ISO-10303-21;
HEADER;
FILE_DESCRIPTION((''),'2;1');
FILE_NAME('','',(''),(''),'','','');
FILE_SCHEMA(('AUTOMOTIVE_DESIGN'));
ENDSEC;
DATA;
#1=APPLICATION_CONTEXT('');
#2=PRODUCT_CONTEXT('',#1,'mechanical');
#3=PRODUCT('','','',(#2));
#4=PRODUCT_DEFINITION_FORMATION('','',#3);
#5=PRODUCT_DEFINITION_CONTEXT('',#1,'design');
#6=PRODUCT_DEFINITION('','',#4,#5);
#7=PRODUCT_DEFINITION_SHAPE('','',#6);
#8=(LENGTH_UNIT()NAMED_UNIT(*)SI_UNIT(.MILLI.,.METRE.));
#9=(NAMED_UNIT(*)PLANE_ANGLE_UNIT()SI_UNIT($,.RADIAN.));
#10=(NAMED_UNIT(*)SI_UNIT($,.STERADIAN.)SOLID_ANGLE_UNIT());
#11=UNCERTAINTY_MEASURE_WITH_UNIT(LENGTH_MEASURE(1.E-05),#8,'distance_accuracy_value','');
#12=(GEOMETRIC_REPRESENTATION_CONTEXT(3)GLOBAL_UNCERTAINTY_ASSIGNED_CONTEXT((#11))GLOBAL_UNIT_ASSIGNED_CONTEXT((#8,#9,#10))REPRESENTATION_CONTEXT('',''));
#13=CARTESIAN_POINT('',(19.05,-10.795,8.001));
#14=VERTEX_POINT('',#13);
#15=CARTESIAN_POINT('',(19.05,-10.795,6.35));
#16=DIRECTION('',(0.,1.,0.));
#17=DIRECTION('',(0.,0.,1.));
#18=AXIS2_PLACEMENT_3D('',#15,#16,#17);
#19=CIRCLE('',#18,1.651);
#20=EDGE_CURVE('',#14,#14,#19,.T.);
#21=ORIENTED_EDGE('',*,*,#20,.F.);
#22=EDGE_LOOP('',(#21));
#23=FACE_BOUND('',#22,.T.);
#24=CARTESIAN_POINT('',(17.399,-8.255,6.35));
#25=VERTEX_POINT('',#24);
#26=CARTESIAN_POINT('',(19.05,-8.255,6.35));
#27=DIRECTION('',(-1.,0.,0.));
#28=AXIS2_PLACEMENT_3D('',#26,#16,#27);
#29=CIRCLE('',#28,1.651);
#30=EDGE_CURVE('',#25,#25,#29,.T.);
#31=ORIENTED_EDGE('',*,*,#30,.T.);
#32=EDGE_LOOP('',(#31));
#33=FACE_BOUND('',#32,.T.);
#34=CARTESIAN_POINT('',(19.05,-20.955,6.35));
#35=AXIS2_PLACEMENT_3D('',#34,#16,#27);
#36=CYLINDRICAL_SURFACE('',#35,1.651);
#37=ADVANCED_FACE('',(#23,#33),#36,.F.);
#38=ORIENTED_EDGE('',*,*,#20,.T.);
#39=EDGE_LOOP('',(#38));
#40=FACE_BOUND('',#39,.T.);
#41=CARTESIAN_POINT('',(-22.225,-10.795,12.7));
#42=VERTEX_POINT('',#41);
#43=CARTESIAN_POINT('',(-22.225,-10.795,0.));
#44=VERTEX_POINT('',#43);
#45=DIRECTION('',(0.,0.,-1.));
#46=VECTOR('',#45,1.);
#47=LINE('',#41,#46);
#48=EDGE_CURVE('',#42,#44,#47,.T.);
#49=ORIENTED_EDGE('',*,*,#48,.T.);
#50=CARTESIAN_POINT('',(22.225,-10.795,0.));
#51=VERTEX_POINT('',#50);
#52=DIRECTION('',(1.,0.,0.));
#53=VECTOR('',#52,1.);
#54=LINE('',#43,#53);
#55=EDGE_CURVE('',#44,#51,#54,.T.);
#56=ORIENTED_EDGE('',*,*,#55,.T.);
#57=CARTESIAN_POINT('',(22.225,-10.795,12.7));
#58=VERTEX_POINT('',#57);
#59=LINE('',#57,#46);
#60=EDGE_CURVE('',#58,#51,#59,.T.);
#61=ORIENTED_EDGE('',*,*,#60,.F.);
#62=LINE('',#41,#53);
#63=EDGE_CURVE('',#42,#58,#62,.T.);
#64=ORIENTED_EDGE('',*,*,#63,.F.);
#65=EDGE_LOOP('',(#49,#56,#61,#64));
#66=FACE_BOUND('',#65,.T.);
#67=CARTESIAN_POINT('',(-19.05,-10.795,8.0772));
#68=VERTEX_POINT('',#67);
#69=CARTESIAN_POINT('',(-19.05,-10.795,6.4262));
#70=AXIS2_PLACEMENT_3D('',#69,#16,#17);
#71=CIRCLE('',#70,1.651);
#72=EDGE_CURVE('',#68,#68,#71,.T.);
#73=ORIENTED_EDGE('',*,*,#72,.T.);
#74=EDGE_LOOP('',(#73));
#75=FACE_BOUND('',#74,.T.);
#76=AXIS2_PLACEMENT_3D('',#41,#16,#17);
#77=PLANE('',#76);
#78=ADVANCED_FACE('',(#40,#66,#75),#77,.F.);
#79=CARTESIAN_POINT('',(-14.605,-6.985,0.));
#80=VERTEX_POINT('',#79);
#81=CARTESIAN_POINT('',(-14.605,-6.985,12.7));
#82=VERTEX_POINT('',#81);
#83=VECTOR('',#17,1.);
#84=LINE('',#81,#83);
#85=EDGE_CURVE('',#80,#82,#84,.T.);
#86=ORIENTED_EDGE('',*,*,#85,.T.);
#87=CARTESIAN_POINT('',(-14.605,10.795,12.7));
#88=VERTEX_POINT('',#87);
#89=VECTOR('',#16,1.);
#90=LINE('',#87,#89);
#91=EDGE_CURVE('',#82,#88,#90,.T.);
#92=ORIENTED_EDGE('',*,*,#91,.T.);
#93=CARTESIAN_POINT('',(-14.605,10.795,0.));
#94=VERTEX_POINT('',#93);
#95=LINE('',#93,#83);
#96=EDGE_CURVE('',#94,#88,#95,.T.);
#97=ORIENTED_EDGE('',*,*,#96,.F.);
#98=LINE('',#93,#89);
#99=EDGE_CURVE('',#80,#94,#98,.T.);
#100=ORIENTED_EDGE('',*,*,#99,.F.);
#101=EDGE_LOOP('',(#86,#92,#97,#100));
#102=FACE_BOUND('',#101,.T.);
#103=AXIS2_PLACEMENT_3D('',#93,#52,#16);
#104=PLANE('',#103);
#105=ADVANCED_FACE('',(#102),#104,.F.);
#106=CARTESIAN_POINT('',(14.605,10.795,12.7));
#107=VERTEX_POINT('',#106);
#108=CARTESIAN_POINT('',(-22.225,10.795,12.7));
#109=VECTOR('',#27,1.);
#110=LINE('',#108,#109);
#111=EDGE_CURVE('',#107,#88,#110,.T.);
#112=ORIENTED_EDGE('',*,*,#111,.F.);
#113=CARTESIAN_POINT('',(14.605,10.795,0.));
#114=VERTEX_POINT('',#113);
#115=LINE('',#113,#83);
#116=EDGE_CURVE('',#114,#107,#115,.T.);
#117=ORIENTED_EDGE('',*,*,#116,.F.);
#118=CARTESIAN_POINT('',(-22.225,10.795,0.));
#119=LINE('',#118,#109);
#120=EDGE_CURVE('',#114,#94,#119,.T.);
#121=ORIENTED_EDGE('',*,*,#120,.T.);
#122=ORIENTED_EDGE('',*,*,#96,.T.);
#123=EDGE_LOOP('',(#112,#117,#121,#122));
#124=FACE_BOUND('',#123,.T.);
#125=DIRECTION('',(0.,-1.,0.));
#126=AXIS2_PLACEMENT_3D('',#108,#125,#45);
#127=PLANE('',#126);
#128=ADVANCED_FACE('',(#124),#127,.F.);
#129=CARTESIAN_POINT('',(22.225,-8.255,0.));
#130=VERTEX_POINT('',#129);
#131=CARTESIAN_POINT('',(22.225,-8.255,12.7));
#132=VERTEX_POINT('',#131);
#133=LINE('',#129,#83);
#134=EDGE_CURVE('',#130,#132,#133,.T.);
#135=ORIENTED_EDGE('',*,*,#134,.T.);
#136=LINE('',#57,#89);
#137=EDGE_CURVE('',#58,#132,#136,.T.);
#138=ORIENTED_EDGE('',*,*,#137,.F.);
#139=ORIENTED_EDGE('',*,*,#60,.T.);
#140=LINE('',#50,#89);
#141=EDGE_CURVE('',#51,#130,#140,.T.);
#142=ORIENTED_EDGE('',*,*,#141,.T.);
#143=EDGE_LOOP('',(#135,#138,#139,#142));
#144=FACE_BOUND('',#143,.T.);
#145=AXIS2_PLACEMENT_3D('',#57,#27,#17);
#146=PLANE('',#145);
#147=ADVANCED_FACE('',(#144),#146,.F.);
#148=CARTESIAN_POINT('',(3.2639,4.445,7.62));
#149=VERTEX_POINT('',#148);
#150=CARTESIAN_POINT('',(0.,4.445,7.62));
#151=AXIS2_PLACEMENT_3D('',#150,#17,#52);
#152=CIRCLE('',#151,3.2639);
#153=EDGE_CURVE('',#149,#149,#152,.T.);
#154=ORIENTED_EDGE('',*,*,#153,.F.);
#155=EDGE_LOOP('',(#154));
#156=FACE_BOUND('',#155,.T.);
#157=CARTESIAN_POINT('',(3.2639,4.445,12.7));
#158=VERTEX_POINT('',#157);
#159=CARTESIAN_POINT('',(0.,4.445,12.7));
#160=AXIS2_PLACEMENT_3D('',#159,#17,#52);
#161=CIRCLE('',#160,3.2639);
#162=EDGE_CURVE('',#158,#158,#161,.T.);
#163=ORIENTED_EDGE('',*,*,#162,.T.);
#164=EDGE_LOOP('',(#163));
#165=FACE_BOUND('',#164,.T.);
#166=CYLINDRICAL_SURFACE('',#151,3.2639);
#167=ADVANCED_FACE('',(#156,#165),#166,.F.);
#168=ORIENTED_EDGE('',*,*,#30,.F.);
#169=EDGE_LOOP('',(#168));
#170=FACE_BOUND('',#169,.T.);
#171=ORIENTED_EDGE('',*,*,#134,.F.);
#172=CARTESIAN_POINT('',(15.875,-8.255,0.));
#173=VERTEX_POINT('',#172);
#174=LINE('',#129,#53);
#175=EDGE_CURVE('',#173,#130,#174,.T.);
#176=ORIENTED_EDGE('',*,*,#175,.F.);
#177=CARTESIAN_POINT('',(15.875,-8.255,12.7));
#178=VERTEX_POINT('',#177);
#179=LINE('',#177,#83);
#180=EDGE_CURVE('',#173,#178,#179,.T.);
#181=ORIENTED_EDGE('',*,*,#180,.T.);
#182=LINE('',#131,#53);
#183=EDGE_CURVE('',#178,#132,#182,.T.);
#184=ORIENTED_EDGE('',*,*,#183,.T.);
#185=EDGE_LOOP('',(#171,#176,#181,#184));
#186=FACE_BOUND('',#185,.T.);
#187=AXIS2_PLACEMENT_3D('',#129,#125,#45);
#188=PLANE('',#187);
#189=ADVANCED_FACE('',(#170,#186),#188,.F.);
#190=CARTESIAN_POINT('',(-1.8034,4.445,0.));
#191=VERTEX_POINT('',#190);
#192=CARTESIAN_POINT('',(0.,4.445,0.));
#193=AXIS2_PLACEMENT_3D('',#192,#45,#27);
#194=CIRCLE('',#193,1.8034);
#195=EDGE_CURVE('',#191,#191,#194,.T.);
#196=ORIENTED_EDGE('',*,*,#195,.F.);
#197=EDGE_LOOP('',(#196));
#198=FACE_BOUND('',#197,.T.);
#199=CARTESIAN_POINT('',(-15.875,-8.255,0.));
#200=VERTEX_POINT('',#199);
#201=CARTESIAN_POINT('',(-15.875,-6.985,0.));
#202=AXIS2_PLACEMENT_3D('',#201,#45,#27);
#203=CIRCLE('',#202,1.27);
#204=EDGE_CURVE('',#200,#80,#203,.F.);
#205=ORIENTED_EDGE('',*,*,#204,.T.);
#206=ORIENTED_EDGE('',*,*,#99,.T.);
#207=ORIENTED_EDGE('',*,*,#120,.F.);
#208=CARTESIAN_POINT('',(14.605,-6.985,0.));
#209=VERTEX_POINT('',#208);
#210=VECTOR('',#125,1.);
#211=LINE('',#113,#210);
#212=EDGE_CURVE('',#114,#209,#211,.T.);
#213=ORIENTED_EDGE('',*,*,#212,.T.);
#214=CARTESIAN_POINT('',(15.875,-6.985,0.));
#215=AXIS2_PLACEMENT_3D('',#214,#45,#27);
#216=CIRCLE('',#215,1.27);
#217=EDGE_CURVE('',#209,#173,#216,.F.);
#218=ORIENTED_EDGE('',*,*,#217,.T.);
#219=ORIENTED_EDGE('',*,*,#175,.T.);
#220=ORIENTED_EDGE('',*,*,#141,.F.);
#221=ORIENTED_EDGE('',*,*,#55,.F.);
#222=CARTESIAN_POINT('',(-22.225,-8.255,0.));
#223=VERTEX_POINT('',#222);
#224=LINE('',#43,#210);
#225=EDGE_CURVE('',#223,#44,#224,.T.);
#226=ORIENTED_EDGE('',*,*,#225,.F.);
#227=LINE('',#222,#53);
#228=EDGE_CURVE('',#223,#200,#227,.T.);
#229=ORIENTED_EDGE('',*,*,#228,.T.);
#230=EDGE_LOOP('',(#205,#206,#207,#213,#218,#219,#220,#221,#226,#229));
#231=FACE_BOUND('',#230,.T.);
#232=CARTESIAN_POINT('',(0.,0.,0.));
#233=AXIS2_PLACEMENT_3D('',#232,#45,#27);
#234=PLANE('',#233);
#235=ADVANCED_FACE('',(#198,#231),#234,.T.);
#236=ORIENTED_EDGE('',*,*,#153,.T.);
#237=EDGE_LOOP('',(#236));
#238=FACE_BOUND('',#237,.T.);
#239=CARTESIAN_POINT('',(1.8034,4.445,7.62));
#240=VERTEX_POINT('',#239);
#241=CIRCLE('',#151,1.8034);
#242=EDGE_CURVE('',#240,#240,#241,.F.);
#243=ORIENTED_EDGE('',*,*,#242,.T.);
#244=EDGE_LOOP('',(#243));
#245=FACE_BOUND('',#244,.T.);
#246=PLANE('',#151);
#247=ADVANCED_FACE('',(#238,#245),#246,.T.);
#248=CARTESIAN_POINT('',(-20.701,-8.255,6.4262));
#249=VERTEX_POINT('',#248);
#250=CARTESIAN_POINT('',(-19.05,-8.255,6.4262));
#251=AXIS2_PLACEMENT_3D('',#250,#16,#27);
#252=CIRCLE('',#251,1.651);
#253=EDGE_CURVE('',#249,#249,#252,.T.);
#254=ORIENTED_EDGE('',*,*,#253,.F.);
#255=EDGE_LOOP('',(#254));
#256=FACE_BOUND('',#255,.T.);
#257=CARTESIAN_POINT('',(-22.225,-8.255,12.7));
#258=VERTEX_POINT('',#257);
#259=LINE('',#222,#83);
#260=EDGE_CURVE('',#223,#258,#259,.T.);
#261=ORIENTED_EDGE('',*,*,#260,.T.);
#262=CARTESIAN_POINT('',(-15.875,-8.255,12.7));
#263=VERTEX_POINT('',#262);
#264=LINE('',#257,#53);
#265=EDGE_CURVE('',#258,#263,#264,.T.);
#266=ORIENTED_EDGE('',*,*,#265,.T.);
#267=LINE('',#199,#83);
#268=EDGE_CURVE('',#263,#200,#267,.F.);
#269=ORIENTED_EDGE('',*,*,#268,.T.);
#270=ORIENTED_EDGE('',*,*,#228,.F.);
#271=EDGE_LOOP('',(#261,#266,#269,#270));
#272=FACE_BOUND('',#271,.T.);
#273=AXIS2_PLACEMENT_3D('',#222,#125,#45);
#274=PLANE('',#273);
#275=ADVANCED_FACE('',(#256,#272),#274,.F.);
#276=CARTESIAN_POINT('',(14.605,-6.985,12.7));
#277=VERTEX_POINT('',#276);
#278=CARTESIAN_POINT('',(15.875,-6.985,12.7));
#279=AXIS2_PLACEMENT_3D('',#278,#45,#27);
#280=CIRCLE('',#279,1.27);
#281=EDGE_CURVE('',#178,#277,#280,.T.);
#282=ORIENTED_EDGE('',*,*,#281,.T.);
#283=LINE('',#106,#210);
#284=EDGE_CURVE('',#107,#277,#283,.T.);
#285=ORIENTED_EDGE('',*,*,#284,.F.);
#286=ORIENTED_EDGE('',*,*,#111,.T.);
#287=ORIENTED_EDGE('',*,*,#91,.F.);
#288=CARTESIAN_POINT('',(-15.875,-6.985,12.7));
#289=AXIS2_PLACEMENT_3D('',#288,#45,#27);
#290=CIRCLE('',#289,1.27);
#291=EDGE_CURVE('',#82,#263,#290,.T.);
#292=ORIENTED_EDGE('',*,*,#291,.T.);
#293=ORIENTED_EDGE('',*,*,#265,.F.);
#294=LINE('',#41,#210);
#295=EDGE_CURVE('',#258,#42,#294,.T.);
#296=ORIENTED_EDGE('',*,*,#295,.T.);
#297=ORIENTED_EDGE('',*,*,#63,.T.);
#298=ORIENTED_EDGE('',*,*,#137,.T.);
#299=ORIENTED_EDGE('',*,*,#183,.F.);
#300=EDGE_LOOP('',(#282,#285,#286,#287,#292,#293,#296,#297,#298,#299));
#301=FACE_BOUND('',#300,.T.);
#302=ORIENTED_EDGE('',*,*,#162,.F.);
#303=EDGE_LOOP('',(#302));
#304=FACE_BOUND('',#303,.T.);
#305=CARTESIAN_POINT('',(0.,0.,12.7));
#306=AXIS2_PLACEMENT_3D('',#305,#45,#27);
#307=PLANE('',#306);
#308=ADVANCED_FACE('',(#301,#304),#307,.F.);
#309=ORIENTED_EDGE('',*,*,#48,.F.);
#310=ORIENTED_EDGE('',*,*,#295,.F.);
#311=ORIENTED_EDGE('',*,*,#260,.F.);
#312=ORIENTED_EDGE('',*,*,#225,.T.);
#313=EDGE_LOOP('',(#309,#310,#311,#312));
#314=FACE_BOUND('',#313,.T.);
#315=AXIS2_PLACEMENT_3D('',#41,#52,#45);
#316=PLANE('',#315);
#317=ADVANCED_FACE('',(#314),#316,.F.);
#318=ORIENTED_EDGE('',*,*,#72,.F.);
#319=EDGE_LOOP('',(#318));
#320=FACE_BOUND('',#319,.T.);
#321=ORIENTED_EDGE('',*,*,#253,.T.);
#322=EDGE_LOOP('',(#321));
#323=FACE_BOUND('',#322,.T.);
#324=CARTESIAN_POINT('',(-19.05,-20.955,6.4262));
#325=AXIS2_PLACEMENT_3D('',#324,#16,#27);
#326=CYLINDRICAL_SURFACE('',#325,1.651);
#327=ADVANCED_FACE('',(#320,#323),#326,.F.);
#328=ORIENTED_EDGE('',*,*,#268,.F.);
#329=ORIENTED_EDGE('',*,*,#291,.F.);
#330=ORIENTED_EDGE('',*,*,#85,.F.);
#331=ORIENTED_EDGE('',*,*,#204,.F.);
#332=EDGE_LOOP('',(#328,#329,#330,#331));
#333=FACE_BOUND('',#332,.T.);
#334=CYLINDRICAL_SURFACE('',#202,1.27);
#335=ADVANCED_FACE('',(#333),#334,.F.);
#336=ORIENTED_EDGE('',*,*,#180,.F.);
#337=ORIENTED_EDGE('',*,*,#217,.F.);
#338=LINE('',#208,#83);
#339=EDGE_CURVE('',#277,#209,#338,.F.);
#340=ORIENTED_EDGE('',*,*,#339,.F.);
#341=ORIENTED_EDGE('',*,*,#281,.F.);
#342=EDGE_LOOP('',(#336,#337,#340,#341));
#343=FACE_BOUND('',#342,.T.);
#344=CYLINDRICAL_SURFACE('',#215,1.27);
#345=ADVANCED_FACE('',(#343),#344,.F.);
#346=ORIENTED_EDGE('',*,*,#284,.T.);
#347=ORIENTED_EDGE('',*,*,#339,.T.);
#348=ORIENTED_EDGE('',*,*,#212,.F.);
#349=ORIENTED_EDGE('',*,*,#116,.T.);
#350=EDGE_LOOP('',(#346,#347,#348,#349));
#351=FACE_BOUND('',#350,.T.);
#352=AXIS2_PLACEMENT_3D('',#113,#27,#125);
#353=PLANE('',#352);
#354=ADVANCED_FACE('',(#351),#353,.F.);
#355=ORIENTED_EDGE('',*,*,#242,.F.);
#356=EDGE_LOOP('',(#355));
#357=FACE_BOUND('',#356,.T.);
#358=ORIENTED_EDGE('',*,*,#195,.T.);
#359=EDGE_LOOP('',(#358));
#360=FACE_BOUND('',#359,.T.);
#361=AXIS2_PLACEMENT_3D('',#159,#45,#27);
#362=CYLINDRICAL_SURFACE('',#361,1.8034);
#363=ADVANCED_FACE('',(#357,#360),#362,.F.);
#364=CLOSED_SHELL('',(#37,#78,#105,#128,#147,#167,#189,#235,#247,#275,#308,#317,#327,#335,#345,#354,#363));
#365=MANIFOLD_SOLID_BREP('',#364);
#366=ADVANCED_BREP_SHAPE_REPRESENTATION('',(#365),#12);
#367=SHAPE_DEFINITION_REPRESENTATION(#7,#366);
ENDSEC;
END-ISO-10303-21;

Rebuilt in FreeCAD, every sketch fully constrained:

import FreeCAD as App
import Part
import Sketcher
from FreeCAD import Vector
Q = App.Units.Quantity


def edges_at(feature, points):
    """Names of the edges that pass closest to the given points."""
    edges = feature.Shape.Edges
    near = lambda p: min(range(len(edges)), key=lambda i: edges[i].distToShape(Part.Vertex(*p))[0])
    return sorted({f"Edge{near(p) + 1}" for p in points})

doc = App.newDocument("Part")
body = doc.addObject("PartDesign::Body", "Body")

# Sketch on XY plane
sketch1 = doc.addObject("Sketcher::SketchObject", "Sketch")
body.addObject(sketch1)
sketch1.AttachmentSupport = (doc.XY_Plane, [""])
sketch1.MapMode = "FlatFace"
sketch1.addGeometry([
    Part.LineSegment(Vector(-22, 11, 0), Vector(-22, -11, 0)),
    Part.LineSegment(Vector(-22, -11, 0), Vector(22, -11, 0)),
    Part.LineSegment(Vector(22, -11, 0), Vector(22, 11, 0)),
    Part.LineSegment(Vector(22, 11, 0), Vector(-22, 11, 0)),
], False)
sketch1.addConstraint([
    Sketcher.Constraint("Coincident", 0, 2, 1, 1),
    Sketcher.Constraint("Coincident", 1, 2, 2, 1),
    Sketcher.Constraint("Coincident", 2, 2, 3, 1),
    Sketcher.Constraint("Coincident", 3, 2, 0, 1),
    Sketcher.Constraint("Vertical", 0),
    Sketcher.Constraint("Horizontal", 1),
    Sketcher.Constraint("Vertical", 2),
    Sketcher.Constraint("Horizontal", 3),
    Sketcher.Constraint("Symmetric", 0, 2, 2, 2, -1, 1),
    Sketcher.Constraint("DistanceX", 1, 1, 1, 2, Q("1.75 in")),
    Sketcher.Constraint("DistanceY", 0, 2, 0, 1, Q("0.85 in")),
])
pad1 = doc.addObject("PartDesign::Pad", "Pad")
body.addObject(pad1)
pad1.Profile = sketch1
pad1.Length = Q("0.5 in")

# Sketch on XY plane
sketch2 = doc.addObject("Sketcher::SketchObject", "Sketch001")
body.addObject(sketch2)
sketch2.AttachmentSupport = (doc.XY_Plane, [""])
sketch2.MapMode = "FlatFace"
sketch2.AttachmentOffset = App.Placement(Vector(0, 0, 0.5 * 25.4), App.Rotation())
sketch2.addGeometry([
    Part.LineSegment(Vector(-22, 11, 0), Vector(-22, -8, 0)),  # 0
    Part.LineSegment(Vector(-22, -8, 0), Vector(-15, -8, 0)),  # 1
    Part.LineSegment(Vector(-15, -8, 0), Vector(-15, 11, 0)),  # 2
    Part.LineSegment(Vector(-15, 11, 0), Vector(-22, 11, 0)),  # 3
    Part.LineSegment(Vector(15, 11, 0), Vector(15, -8, 0)),  # 4
    Part.LineSegment(Vector(15, -8, 0), Vector(22, -8, 0)),  # 5
    Part.LineSegment(Vector(22, -8, 0), Vector(22, 11, 0)),  # 6
    Part.LineSegment(Vector(22, 11, 0), Vector(15, 11, 0)),  # 7
], False)
sketch2.addConstraint([
    Sketcher.Constraint("Coincident", 0, 2, 1, 1),
    Sketcher.Constraint("Coincident", 1, 2, 2, 1),
    Sketcher.Constraint("Coincident", 2, 2, 3, 1),
    Sketcher.Constraint("Coincident", 3, 2, 0, 1),
    Sketcher.Constraint("Coincident", 4, 2, 5, 1),
    Sketcher.Constraint("Coincident", 5, 2, 6, 1),
    Sketcher.Constraint("Coincident", 6, 2, 7, 1),
    Sketcher.Constraint("Coincident", 7, 2, 4, 1),
    Sketcher.Constraint("Vertical", 0),
    Sketcher.Constraint("Horizontal", 1),
    Sketcher.Constraint("Vertical", 2),
    Sketcher.Constraint("Horizontal", 3),
    Sketcher.Constraint("Vertical", 4),
    Sketcher.Constraint("Horizontal", 5),
    Sketcher.Constraint("Vertical", 6),
    Sketcher.Constraint("Horizontal", 7),
    Sketcher.Constraint("Symmetric", 1, 2, 4, 2, -2),
    Sketcher.Constraint("Symmetric", 3, 2, 6, 2, -2),
    Sketcher.Constraint("DistanceX", 1, 1, 1, 2, Q("0.3 in")),
    Sketcher.Constraint("DistanceY", 0, 2, 0, 1, Q("0.75 in")),
    Sketcher.Constraint("DistanceX", 1, 2, 4, 2, Q("1.15 in")),
    Sketcher.Constraint("DistanceY", 0, 2, -1, 1, Q("0.325 in")),
])
pocket1 = doc.addObject("PartDesign::Pocket", "Pocket")
body.addObject(pocket1)
pocket1.Profile = sketch2
pocket1.Length = Q("0.5 in")
doc.recompute()

fillet = doc.addObject("PartDesign::Fillet", "Fillet")
body.addObject(fillet)
fillet.Base = (pocket1, edges_at(pocket1, [(-14.605, -8.255, 6.35)]))
fillet.Radius = Q("0.05 in")
doc.recompute()

fillet2 = doc.addObject("PartDesign::Fillet", "Fillet001")
body.addObject(fillet2)
fillet2.Base = (fillet, edges_at(fillet, [(14.605, -8.255, 6.35)]))
fillet2.Radius = Q("0.05 in")

# Sketch on XZ plane
sketch3 = doc.addObject("Sketcher::SketchObject", "Sketch002")
body.addObject(sketch3)
sketch3.AttachmentSupport = (doc.XZ_Plane, [""])
sketch3.MapMode = "FlatFace"
sketch3.AttachmentOffset = App.Placement(Vector(0, 0, 0.325 * 25.4), App.Rotation())
sketch3.addGeometry([
    Part.Circle(Vector(19.1, 6.3, 0), Vector(0, 0, 1), 1.7),
    Part.Circle(Vector(-19.1, 6.4, 0), Vector(0, 0, 1), 1.7),
], False)
sketch3.addConstraint([
    Sketcher.Constraint("Equal", 0, 1),
    Sketcher.Constraint("Diameter", 0, Q("0.13 in")),
    Sketcher.Constraint("DistanceX", 1, 3, 0, 3, Q("1.5 in")),
    Sketcher.Constraint("DistanceX", -1, 1, 0, 3, Q("0.75 in")),
    Sketcher.Constraint("DistanceY", -1, 1, 0, 3, Q("0.25 in")),
    Sketcher.Constraint("DistanceY", -1, 1, 1, 3, Q("0.253 in")),
])
pocket2 = doc.addObject("PartDesign::Pocket", "Pocket001")
body.addObject(pocket2)
pocket2.Profile = sketch3
pocket2.Length = Q("0.5 in")
pocket2.Reversed = True

# Sketch on XY plane
sketch4 = doc.addObject("Sketcher::SketchObject", "Sketch003")
body.addObject(sketch4)
sketch4.AttachmentSupport = (doc.XY_Plane, [""])
sketch4.MapMode = "FlatFace"
sketch4.addGeometry(Part.Circle(Vector(0, 4.4, 0), Vector(0, 0, 1), 1.8), False)
sketch4.addConstraint([
    Sketcher.Constraint("PointOnObject", 0, 3, -2),
    Sketcher.Constraint("Diameter", 0, Q("0.142 in")),
    Sketcher.Constraint("DistanceY", -1, 1, 0, 3, Q("0.175 in")),
])
pocket3 = doc.addObject("PartDesign::Pocket", "Pocket002")
body.addObject(pocket3)
pocket3.Profile = sketch4
pocket3.Length = Q("0.5 in")
pocket3.Reversed = True

# Sketch on XY plane
sketch5 = doc.addObject("Sketcher::SketchObject", "Sketch004")
body.addObject(sketch5)
sketch5.AttachmentSupport = (doc.XY_Plane, [""])
sketch5.MapMode = "FlatFace"
sketch5.AttachmentOffset = App.Placement(Vector(0, 0, 0.5 * 25.4), App.Rotation())
sketch5.addGeometry(Part.Circle(Vector(0, 4.4, 0), Vector(0, 0, 1), 3.3), False)
sketch5.addConstraint([
    Sketcher.Constraint("PointOnObject", 0, 3, -2),
    Sketcher.Constraint("Diameter", 0, Q("0.257 in")),
    Sketcher.Constraint("DistanceY", -1, 1, 0, 3, Q("0.175 in")),
])
pocket4 = doc.addObject("PartDesign::Pocket", "Pocket003")
body.addObject(pocket4)
pocket4.Profile = sketch5
pocket4.Length = Q("0.2 in")

doc.recompute()
